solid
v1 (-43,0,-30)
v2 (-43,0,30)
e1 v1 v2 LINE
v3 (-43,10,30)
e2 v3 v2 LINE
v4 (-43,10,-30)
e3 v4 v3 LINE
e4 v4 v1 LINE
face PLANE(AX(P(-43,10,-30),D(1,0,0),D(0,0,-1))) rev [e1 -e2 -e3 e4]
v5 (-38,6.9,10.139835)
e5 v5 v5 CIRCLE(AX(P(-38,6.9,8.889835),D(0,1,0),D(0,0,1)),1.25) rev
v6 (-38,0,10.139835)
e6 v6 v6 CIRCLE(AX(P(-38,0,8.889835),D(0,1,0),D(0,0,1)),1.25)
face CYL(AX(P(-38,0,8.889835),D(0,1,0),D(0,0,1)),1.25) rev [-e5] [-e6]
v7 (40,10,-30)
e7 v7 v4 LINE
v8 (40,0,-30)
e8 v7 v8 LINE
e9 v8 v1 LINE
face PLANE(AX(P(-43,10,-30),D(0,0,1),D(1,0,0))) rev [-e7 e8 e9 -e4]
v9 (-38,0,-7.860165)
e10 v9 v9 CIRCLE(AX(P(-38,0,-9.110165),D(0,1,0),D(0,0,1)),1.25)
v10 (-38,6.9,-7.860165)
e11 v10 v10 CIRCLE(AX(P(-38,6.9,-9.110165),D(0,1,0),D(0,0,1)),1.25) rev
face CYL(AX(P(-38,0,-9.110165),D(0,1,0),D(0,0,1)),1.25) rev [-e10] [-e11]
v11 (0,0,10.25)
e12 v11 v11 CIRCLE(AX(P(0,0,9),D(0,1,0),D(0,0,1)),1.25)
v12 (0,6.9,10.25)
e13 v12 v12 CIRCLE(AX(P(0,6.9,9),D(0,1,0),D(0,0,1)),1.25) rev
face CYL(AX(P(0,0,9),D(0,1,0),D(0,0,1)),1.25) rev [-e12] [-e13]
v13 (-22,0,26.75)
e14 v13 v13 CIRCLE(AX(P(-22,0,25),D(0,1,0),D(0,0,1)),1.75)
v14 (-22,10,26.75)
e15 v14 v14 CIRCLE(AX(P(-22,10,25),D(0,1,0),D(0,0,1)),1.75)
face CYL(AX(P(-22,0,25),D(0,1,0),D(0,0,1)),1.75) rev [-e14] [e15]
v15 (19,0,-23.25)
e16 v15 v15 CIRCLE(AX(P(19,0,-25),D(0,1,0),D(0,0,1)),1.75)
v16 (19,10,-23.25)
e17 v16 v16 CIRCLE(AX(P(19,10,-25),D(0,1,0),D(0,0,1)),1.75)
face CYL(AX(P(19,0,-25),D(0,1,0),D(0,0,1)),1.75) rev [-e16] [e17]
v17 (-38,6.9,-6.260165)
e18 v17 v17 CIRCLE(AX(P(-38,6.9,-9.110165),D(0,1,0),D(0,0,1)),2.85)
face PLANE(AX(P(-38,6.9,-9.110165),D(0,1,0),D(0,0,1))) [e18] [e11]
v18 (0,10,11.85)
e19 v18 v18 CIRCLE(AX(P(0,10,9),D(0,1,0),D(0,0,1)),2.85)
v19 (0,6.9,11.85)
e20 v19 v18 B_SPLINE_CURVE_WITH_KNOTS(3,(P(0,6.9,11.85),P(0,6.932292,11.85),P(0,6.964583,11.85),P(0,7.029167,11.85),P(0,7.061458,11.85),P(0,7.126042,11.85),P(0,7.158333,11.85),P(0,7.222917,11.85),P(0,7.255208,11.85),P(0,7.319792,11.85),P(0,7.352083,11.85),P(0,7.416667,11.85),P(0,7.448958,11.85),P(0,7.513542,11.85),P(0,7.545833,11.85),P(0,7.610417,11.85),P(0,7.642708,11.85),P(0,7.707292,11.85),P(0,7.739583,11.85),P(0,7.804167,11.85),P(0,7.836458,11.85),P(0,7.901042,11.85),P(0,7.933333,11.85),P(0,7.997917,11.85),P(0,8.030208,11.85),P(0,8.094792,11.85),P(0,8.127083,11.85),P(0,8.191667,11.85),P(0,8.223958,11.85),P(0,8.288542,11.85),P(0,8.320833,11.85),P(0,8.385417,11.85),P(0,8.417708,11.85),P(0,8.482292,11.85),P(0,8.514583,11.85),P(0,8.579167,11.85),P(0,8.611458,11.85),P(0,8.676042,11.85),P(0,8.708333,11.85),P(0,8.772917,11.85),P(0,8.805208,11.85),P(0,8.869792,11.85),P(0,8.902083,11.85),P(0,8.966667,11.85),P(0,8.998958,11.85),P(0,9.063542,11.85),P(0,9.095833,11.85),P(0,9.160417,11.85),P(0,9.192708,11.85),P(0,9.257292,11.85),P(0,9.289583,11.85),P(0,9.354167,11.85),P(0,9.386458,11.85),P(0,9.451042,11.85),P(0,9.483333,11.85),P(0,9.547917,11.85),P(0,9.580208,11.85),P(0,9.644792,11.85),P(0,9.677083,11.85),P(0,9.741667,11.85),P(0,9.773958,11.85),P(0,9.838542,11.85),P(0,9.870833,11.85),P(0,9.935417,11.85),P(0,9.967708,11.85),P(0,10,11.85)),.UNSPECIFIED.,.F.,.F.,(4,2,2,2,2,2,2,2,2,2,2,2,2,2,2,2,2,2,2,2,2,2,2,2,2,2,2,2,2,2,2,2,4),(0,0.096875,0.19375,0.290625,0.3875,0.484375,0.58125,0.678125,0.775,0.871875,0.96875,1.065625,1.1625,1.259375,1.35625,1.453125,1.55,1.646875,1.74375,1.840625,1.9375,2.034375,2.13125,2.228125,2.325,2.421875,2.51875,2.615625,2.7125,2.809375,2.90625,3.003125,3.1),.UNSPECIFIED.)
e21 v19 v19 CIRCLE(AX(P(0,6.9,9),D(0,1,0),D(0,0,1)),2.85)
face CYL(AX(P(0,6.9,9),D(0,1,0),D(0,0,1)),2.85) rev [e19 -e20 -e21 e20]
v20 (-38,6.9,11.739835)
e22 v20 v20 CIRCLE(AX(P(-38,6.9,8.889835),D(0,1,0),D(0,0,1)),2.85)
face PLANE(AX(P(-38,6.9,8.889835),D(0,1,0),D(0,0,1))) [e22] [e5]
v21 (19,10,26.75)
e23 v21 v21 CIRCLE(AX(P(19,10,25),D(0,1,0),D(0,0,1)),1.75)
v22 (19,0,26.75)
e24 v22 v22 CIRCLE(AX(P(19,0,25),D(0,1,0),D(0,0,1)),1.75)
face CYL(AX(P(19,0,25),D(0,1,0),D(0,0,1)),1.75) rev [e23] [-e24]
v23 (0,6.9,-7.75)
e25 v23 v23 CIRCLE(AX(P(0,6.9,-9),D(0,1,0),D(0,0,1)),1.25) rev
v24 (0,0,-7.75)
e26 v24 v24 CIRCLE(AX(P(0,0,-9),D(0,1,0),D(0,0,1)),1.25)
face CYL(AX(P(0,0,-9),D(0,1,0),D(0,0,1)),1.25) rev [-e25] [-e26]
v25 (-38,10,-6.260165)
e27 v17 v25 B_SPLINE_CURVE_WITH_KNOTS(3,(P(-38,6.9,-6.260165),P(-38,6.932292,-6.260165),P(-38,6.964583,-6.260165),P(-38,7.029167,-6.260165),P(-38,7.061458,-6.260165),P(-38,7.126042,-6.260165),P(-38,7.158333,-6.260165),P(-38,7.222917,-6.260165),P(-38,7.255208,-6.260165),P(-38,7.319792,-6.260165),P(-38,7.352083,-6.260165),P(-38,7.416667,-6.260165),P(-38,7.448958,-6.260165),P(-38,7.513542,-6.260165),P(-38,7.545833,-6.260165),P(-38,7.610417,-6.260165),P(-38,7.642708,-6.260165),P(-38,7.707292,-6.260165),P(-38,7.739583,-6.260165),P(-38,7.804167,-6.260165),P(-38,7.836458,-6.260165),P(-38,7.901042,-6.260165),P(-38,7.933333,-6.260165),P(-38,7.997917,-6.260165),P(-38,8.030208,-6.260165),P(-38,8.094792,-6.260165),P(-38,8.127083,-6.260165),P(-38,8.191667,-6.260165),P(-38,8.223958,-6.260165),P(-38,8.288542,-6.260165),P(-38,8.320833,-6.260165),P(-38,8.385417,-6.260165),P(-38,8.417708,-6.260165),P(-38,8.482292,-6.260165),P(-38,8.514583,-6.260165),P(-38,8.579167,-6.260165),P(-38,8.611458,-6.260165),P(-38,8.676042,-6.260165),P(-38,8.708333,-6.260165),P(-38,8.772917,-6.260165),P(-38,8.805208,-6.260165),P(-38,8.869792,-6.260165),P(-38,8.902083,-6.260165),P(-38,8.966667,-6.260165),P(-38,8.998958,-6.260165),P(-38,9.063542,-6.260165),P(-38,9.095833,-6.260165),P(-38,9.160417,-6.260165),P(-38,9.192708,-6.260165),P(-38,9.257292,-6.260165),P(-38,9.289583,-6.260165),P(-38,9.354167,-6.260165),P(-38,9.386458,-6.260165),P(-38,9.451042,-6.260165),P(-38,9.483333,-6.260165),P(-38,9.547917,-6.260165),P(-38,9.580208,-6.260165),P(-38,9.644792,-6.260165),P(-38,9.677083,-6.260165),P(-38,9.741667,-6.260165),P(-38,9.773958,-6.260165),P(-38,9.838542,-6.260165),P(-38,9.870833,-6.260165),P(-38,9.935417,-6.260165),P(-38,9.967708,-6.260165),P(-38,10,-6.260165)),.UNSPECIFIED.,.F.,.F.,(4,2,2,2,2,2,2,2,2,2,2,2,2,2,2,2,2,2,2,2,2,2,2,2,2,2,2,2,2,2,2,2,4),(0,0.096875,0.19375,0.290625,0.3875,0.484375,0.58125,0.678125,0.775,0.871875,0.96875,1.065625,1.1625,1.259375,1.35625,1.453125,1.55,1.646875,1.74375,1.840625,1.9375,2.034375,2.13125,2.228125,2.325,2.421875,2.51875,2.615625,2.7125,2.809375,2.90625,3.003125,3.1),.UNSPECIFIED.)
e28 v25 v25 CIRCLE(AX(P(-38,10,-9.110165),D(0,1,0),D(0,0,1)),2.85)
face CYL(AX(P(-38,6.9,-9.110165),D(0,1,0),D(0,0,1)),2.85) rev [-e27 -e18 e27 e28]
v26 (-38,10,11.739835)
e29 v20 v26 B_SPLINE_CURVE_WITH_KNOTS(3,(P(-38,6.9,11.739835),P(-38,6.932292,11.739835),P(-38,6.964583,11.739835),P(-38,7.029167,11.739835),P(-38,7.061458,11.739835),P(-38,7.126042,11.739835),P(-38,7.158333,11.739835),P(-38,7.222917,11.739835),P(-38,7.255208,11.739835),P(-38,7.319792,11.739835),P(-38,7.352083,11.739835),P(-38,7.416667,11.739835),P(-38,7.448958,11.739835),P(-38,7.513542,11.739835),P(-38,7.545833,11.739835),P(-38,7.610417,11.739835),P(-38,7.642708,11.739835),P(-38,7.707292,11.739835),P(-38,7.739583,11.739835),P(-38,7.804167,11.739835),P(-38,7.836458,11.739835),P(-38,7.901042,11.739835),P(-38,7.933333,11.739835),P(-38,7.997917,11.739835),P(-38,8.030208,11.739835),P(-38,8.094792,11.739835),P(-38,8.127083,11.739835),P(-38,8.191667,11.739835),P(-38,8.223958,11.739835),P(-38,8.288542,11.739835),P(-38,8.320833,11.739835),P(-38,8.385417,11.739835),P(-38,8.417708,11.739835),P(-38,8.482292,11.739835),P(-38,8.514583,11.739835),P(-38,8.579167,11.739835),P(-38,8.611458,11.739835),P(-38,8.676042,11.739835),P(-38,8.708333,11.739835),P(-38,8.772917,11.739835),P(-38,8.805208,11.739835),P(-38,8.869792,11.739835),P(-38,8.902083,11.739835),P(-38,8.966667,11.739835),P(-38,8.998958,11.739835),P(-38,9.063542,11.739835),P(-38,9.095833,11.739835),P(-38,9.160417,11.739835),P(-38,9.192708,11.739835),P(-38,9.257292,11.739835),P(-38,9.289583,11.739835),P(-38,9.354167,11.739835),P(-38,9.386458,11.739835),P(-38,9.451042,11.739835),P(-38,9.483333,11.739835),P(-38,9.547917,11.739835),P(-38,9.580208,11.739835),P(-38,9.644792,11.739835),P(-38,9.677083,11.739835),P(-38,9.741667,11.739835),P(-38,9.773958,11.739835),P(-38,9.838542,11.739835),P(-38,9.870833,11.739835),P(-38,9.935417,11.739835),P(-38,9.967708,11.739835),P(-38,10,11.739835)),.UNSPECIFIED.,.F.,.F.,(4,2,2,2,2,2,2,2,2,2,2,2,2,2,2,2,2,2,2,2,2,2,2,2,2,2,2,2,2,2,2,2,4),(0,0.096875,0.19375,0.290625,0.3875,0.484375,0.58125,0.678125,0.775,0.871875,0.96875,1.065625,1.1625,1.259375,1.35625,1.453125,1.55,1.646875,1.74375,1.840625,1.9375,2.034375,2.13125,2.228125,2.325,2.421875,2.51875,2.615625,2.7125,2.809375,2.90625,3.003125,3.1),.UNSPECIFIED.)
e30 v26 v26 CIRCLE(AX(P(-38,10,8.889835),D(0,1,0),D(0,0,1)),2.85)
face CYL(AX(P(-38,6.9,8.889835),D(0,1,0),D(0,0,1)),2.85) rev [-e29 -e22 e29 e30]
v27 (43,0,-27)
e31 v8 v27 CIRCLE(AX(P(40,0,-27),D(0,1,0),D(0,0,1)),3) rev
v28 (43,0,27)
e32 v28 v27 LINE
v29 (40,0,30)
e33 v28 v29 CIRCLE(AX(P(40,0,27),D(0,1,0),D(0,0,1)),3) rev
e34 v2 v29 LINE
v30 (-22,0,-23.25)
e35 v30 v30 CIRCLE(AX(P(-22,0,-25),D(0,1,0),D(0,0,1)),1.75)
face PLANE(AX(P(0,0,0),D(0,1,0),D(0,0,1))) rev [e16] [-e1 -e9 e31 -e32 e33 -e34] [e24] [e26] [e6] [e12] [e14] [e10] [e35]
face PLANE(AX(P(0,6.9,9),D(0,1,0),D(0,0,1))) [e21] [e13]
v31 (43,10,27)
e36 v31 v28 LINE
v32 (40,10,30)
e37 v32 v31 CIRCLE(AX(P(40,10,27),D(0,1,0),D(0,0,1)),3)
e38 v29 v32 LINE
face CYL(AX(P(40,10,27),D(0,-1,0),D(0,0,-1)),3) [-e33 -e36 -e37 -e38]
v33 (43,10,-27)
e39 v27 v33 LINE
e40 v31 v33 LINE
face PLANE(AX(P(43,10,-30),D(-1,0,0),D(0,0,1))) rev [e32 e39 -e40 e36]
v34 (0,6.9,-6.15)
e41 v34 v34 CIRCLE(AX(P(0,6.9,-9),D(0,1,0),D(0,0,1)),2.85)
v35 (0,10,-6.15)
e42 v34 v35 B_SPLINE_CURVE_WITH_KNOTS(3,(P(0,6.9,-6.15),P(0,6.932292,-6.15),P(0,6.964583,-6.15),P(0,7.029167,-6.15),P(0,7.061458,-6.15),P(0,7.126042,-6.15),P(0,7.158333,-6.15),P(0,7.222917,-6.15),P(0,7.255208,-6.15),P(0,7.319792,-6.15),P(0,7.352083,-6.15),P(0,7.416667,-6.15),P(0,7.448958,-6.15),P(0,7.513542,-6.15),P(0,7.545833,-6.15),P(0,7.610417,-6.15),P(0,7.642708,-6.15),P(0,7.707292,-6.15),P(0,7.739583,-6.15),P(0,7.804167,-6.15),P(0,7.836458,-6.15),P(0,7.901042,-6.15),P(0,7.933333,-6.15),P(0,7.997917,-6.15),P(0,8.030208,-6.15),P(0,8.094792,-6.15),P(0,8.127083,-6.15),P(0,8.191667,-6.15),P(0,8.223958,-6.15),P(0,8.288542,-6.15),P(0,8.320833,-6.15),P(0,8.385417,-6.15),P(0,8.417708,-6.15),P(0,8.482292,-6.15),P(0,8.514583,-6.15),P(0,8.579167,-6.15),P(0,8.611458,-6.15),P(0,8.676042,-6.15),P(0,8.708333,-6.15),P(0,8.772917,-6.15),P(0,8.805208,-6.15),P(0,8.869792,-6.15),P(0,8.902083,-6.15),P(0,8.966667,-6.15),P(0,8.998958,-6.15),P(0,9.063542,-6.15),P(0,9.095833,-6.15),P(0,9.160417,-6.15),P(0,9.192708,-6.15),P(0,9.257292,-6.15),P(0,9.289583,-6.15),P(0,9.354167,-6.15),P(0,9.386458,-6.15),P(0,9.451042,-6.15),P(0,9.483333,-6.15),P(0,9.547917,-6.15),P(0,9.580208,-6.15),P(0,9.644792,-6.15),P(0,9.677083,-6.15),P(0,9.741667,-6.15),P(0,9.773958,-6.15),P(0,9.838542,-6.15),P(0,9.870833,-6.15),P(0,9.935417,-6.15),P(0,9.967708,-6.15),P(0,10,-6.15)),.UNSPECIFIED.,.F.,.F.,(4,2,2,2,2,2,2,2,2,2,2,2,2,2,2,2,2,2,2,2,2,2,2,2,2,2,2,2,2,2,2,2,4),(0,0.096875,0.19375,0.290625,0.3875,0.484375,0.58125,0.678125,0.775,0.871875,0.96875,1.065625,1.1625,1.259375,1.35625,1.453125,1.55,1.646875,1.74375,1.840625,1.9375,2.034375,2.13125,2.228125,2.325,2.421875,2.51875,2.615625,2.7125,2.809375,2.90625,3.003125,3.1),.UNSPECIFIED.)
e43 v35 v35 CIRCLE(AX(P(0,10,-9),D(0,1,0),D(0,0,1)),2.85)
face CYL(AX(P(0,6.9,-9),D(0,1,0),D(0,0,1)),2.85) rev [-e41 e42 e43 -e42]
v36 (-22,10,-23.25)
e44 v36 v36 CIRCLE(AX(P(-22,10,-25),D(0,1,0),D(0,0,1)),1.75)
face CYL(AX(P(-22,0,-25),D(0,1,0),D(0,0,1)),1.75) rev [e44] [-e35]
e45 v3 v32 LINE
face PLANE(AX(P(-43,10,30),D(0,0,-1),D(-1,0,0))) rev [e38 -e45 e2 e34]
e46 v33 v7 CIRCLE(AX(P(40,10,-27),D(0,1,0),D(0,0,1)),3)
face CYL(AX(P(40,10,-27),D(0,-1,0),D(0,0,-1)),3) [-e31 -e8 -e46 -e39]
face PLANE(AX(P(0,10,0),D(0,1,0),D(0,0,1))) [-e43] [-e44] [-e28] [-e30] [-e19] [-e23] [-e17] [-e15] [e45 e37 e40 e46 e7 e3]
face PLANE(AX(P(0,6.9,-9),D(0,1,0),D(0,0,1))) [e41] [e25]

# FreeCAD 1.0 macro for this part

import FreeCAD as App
import Part
import Sketcher
from FreeCAD import Vector
Q = App.Units.Quantity


def edges_at(feature, points):
    """Names of the edges that pass closest to the given points."""
    edges = feature.Shape.Edges
    near = lambda p: min(range(len(edges)), key=lambda i: edges[i].distToShape(Part.Vertex(*p))[0])
    return sorted({f"Edge{near(p) + 1}" for p in points})


def add_polygon(sketch, points):
    """Adds a closed chain of lines whose ends are joined by coincident constraints."""
    first, n = sketch.GeometryCount, len(points)
    for a, b in zip(points, points[1:] + points[:1]):
        sketch.addGeometry(Part.LineSegment(App.Vector(*a, 0), App.Vector(*b, 0)), False)
    for i in range(n):
        sketch.addConstraint(Sketcher.Constraint("Coincident", first + i, 2, first + (i + 1) % n, 1))

doc = App.newDocument("Part")
body = doc.addObject("PartDesign::Body", "Body")

# Sketch on XZ plane
sketch1 = body.newObject("Sketcher::SketchObject", "Sketch")
sketch1.AttachmentSupport = (doc.getObject("XZ_Plane"), [""])
sketch1.MapMode = "FlatFace"
add_polygon(sketch1, [(-43, -30), (-43, 30), (43, 30), (43, -30)])  # lines 0-3
sketch1.addConstraint(Sketcher.Constraint("Vertical", 0))
sketch1.addConstraint(Sketcher.Constraint("Horizontal", 1))
sketch1.addConstraint(Sketcher.Constraint("Vertical", 2))
sketch1.addConstraint(Sketcher.Constraint("Horizontal", 3))
sketch1.addConstraint(Sketcher.Constraint("Symmetric", 0, 2, 2, 2, -1, 1))
sketch1.addConstraint(Sketcher.Constraint("DistanceX", 1, 1, 1, 2, Q("86 mm")))
sketch1.addConstraint(Sketcher.Constraint("DistanceY", 0, 1, 0, 2, Q("60 mm")))
pad1 = body.newObject("PartDesign::Pad", "Pad")
pad1.Profile = sketch1
pad1.Length = 10
pad1.Reversed = True
doc.recompute()

fillet = body.newObject("PartDesign::Fillet", "Fillet")
fillet.Base = (pad1, edges_at(pad1, [(43, 5, 30), (43, 5, -30)]))
fillet.Radius = 3

# Sketch on XZ plane
sketch2 = body.newObject("Sketcher::SketchObject", "Sketch001")
sketch2.AttachmentSupport = (doc.getObject("XZ_Plane"), [""])
sketch2.MapMode = "FlatFace"
sketch2.AttachmentOffset = App.Placement(Vector(0, 0, -10), App.Rotation())
sketch2.addGeometry(Part.Circle(Vector(-38, 8.9, 0), Vector(0, 0, 1), 1.2), False)
sketch2.addGeometry(Part.Circle(Vector(-38, -9.1, 0), Vector(0, 0, 1), 1.2), False)
sketch2.addGeometry(Part.Circle(Vector(0, -9, 0), Vector(0, 0, 1), 1.2), False)
sketch2.addGeometry(Part.Circle(Vector(0, 9, 0), Vector(0, 0, 1), 1.2), False)
sketch2.addConstraint(Sketcher.Constraint("Equal", 0, 1))
sketch2.addConstraint(Sketcher.Constraint("Equal", 1, 2))
sketch2.addConstraint(Sketcher.Constraint("Equal", 2, 3))
sketch2.addConstraint(Sketcher.Constraint("Symmetric", 2, 3, 3, 3, -1, 1))
sketch2.addConstraint(Sketcher.Constraint("PointOnObject", 2, 3, -2))
sketch2.addConstraint(Sketcher.Constraint("Vertical", 0, 3, 1, 3))
sketch2.addConstraint(Sketcher.Constraint("Diameter", 0, Q("2.5 mm")))
sketch2.addConstraint(Sketcher.Constraint("DistanceX", 0, 3, -1, 1, Q("38 mm")))
sketch2.addConstraint(Sketcher.Constraint("DistanceY", 2, 3, -1, 1, Q("9 mm")))
sketch2.addConstraint(Sketcher.Constraint("DistanceY", 1, 3, 0, 3, Q("18 mm")))
sketch2.addConstraint(Sketcher.Constraint("DistanceY", -1, 1, 0, 3, Q("8.889835 mm")))
pocket1 = body.newObject("PartDesign::Pocket", "Pocket")
pocket1.Profile = sketch2
pocket1.Type = "ThroughAll"
pocket1.Reversed = True

# Sketch on XZ plane
sketch3 = body.newObject("Sketcher::SketchObject", "Sketch002")
sketch3.AttachmentSupport = (doc.getObject("XZ_Plane"), [""])
sketch3.MapMode = "FlatFace"
sketch3.AttachmentOffset = App.Placement(Vector(0, 0, -10), App.Rotation())
sketch3.addGeometry(Part.Circle(Vector(-38, 8.9, 0), Vector(0, 0, 1), 2.9), False)
sketch3.addGeometry(Part.Circle(Vector(-38, -9.1, 0), Vector(0, 0, 1), 2.9), False)
sketch3.addGeometry(Part.Circle(Vector(0, 9, 0), Vector(0, 0, 1), 2.9), False)
sketch3.addGeometry(Part.Circle(Vector(0, -9, 0), Vector(0, 0, 1), 2.9), False)
sketch3.addConstraint(Sketcher.Constraint("Equal", 0, 1))
sketch3.addConstraint(Sketcher.Constraint("Equal", 1, 2))
sketch3.addConstraint(Sketcher.Constraint("Equal", 2, 3))
sketch3.addConstraint(Sketcher.Constraint("Symmetric", 2, 3, 3, 3, -1, 1))
sketch3.addConstraint(Sketcher.Constraint("PointOnObject", 2, 3, -2))
sketch3.addConstraint(Sketcher.Constraint("Vertical", 0, 3, 1, 3))
sketch3.addConstraint(Sketcher.Constraint("Diameter", 0, Q("5.7 mm")))
sketch3.addConstraint(Sketcher.Constraint("DistanceX", 0, 3, -1, 1, Q("38 mm")))
sketch3.addConstraint(Sketcher.Constraint("DistanceY", -1, 1, 2, 3, Q("9 mm")))
sketch3.addConstraint(Sketcher.Constraint("DistanceY", 1, 3, 0, 3, Q("18 mm")))
sketch3.addConstraint(Sketcher.Constraint("DistanceY", -1, 1, 0, 3, Q("8.889835 mm")))
pocket2 = body.newObject("PartDesign::Pocket", "Pocket001")
pocket2.Profile = sketch3
pocket2.Length = 3.1
pocket2.Reversed = True

# Sketch on XZ plane
sketch4 = body.newObject("Sketcher::SketchObject", "Sketch003")
sketch4.AttachmentSupport = (doc.getObject("XZ_Plane"), [""])
sketch4.MapMode = "FlatFace"
sketch4.AttachmentOffset = App.Placement(Vector(0, 0, -10), App.Rotation())
sketch4.addGeometry(Part.Circle(Vector(-22, 25, 0), Vector(0, 0, 1), 1.8), False)
sketch4.addGeometry(Part.Circle(Vector(-22, -25, 0), Vector(0, 0, 1), 1.8), False)
sketch4.addGeometry(Part.Circle(Vector(19, 25, 0), Vector(0, 0, 1), 1.8), False)
sketch4.addGeometry(Part.Circle(Vector(19, -25, 0), Vector(0, 0, 1), 1.8), False)
sketch4.addConstraint(Sketcher.Constraint("Equal", 0, 1))
sketch4.addConstraint(Sketcher.Constraint("Equal", 1, 2))
sketch4.addConstraint(Sketcher.Constraint("Equal", 2, 3))
sketch4.addConstraint(Sketcher.Constraint("Symmetric", 0, 3, 1, 3, -1))
sketch4.addConstraint(Sketcher.Constraint("Symmetric", 2, 3, 3, 3, -1))
sketch4.addConstraint(Sketcher.Constraint("Horizontal", 0, 3, 2, 3))
sketch4.addConstraint(Sketcher.Constraint("Diameter", 0, Q("3.5 mm")))
sketch4.addConstraint(Sketcher.Constraint("DistanceX", 0, 3, -1, 1, Q("22 mm")))
sketch4.addConstraint(Sketcher.Constraint("DistanceY", -1, 1, 0, 3, Q("25 mm")))
sketch4.addConstraint(Sketcher.Constraint("DistanceX", -1, 1, 2, 3, Q("19 mm")))
pocket3 = body.newObject("PartDesign::Pocket", "Pocket002")
pocket3.Profile = sketch4
pocket3.Type = "ThroughAll"
pocket3.Reversed = True

doc.recompute()
